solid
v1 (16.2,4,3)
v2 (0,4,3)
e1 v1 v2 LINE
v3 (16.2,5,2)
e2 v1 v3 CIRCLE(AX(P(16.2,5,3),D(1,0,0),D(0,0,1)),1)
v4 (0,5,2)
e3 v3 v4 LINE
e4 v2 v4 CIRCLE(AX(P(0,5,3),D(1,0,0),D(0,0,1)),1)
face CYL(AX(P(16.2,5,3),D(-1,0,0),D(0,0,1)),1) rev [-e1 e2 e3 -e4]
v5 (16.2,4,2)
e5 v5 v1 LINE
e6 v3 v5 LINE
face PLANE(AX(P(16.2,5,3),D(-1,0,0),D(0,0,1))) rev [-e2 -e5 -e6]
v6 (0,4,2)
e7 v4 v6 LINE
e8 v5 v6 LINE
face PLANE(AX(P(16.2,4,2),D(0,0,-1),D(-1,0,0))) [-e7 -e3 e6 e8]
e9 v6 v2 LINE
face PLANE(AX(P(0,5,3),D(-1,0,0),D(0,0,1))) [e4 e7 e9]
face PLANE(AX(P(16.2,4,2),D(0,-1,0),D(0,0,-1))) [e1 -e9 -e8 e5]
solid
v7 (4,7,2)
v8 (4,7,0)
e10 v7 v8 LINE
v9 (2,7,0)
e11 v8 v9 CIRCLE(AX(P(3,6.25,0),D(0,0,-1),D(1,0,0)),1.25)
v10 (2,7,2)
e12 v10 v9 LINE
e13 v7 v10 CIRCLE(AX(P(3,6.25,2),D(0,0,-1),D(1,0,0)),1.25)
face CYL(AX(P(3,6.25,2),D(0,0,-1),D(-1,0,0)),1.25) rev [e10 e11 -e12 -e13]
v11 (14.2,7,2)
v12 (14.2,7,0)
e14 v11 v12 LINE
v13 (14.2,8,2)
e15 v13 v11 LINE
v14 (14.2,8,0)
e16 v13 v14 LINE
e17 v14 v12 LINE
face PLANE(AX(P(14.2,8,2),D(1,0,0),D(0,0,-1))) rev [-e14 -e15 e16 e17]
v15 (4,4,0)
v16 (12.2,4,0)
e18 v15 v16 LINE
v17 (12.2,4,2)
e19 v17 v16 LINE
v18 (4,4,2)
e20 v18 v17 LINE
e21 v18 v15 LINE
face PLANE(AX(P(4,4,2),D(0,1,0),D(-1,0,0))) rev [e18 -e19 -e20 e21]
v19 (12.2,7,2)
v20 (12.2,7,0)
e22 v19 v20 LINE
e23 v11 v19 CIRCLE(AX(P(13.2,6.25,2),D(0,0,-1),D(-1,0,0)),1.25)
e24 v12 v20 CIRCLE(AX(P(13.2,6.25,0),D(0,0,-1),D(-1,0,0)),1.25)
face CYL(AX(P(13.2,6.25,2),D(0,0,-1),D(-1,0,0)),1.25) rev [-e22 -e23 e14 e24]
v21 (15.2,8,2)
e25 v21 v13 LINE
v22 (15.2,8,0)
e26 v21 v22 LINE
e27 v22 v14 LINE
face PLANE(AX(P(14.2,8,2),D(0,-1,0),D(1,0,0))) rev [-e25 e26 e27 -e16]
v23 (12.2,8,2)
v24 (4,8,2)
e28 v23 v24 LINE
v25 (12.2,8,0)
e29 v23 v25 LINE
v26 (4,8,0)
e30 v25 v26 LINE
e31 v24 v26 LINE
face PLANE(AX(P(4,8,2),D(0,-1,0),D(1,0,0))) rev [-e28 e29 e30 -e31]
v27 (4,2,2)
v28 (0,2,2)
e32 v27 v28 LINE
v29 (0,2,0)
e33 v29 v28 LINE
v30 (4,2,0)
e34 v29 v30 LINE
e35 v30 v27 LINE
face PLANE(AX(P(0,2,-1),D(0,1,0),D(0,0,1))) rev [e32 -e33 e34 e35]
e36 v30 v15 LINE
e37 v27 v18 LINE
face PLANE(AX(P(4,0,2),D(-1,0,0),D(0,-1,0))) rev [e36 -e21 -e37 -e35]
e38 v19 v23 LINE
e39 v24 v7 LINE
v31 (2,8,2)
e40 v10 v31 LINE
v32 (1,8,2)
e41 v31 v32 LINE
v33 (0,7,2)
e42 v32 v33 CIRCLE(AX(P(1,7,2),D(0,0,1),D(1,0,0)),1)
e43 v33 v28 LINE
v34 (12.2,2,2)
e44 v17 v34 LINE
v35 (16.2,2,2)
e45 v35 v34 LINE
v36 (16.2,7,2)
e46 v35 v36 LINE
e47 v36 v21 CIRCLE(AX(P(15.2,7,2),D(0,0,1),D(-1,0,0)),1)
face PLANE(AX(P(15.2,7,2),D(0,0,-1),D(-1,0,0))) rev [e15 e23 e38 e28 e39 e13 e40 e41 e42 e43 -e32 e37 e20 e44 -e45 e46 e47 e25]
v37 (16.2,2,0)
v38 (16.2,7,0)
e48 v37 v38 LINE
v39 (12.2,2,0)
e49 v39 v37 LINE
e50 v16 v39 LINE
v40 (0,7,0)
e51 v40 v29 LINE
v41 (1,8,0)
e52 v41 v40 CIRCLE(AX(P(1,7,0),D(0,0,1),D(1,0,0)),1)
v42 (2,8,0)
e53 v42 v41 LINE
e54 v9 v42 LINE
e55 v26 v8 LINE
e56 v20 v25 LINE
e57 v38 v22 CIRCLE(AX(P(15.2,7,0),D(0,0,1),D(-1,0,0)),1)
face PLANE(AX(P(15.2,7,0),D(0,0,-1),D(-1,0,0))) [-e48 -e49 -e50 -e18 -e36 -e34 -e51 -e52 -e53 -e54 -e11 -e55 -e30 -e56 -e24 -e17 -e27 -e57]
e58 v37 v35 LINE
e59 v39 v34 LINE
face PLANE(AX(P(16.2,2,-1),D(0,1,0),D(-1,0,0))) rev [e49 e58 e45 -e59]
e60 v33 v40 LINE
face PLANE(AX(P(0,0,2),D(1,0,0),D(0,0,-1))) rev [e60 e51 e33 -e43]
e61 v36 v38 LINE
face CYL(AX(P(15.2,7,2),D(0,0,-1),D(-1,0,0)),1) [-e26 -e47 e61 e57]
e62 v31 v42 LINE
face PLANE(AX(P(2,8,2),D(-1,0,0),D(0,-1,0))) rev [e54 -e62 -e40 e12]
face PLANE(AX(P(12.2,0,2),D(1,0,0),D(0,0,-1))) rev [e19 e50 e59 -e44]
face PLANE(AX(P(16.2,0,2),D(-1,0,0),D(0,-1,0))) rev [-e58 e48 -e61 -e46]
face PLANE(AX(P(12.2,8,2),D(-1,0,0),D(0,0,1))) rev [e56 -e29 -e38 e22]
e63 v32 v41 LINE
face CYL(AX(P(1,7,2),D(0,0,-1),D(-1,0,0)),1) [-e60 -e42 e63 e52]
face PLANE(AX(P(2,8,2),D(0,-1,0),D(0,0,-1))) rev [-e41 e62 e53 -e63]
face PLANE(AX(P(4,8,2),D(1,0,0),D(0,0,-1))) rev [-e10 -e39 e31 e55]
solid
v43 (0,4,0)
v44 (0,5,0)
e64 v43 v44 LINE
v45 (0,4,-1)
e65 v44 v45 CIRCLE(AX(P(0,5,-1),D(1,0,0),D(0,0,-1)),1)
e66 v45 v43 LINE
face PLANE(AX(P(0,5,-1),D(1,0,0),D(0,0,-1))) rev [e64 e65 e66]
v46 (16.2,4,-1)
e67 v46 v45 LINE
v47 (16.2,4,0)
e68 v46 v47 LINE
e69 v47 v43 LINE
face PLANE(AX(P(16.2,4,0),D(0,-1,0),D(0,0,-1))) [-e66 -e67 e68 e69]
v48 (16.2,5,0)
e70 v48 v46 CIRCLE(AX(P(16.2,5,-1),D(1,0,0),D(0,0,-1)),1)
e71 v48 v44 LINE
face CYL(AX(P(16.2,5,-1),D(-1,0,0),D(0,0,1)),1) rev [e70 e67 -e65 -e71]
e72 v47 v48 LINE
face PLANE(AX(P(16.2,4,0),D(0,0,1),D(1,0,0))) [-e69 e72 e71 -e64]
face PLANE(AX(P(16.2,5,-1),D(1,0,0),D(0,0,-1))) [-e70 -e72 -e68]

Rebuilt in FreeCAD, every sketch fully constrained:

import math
import FreeCAD as App
import Part
import Sketcher
Q = App.Units.Quantity


def add_polygon(sketch, points):
    """Adds a closed chain of lines whose ends are joined by coincident constraints."""
    first, n = sketch.GeometryCount, len(points)
    for a, b in zip(points, points[1:] + points[:1]):
        sketch.addGeometry(Part.LineSegment(App.Vector(*a, 0), App.Vector(*b, 0)), False)
    for i in range(n):
        sketch.addConstraint(Sketcher.Constraint("Coincident", first + i, 2, first + (i + 1) % n, 1))

doc = App.newDocument("Part")
body = doc.addObject("PartDesign::Body", "Body")

# Sketch on XY plane
sketch1 = body.newObject("Sketcher::SketchObject", "Sketch")
sketch1.AttachmentSupport = (doc.getObject("XY_Plane"), [""])
sketch1.MapMode = "FlatFace"
sketch1.addGeometry([
    Part.LineSegment(App.Vector(12.2, 8, 0), App.Vector(4, 8, 0)),  # 0
    Part.LineSegment(App.Vector(4, 8, 0), App.Vector(4, 7, 0)),  # 1
    Part.ArcOfCircle(Part.Circle(App.Vector(3, 6.25, 0), App.Vector(0, 0, 1), 1.25), math.radians(143.130102), math.radians(396.869898)),  # 2
    Part.LineSegment(App.Vector(2, 7, 0), App.Vector(2, 8, 0)),  # 3
    Part.LineSegment(App.Vector(2, 8, 0), App.Vector(1, 8, 0)),  # 4
    Part.ArcOfCircle(Part.Circle(App.Vector(1, 7, 0), App.Vector(0, 0, 1), 1), math.radians(90), math.radians(180)),  # 5
    Part.LineSegment(App.Vector(0, 7, 0), App.Vector(0, 0, 0)),  # 6
    Part.LineSegment(App.Vector(0, 0, 0), App.Vector(4, 0, 0)),  # 7
    Part.LineSegment(App.Vector(4, 0, 0), App.Vector(4, 4, 0)),  # 8
    Part.LineSegment(App.Vector(4, 4, 0), App.Vector(12.2, 4, 0)),  # 9
    Part.LineSegment(App.Vector(12.2, 4, 0), App.Vector(12.2, 0, 0)),  # 10
    Part.LineSegment(App.Vector(12.2, 0, 0), App.Vector(16.2, 0, 0)),  # 11
    Part.LineSegment(App.Vector(16.2, 0, 0), App.Vector(16.2, 7, 0)),  # 12
    Part.ArcOfCircle(Part.Circle(App.Vector(15.2, 7, 0), App.Vector(0, 0, 1), 1), math.radians(0), math.radians(90)),  # 13
    Part.LineSegment(App.Vector(15.2, 8, 0), App.Vector(14.2, 8, 0)),  # 14
    Part.LineSegment(App.Vector(14.2, 8, 0), App.Vector(14.2, 7, 0)),  # 15
    Part.ArcOfCircle(Part.Circle(App.Vector(13.2, 6.25, 0), App.Vector(0, 0, 1), 1.25), math.radians(143.130102), math.radians(396.869898)),  # 16
    Part.LineSegment(App.Vector(12.2, 7, 0), App.Vector(12.2, 8, 0)),  # 17
], False)
sketch1.addConstraint([
    Sketcher.Constraint("Coincident", 0, 2, 1, 1),
    Sketcher.Constraint("Coincident", 1, 2, 2, 2),
    Sketcher.Constraint("Coincident", 2, 1, 3, 1),
    Sketcher.Constraint("Coincident", 3, 2, 4, 1),
    Sketcher.Constraint("Tangent", 4, 2, 5, 1),
    Sketcher.Constraint("Tangent", 5, 2, 6, 1),
    Sketcher.Constraint("Coincident", 6, 2, 7, 1),
    Sketcher.Constraint("Coincident", 7, 2, 8, 1),
    Sketcher.Constraint("Coincident", 8, 2, 9, 1),
    Sketcher.Constraint("Coincident", 9, 2, 10, 1),
    Sketcher.Constraint("Coincident", 10, 2, 11, 1),
    Sketcher.Constraint("Coincident", 11, 2, 12, 1),
    Sketcher.Constraint("Tangent", 12, 2, 13, 1),
    Sketcher.Constraint("Tangent", 13, 2, 14, 1),
    Sketcher.Constraint("Coincident", 14, 2, 15, 1),
    Sketcher.Constraint("Coincident", 15, 2, 16, 2),
    Sketcher.Constraint("Coincident", 16, 1, 17, 1),
    Sketcher.Constraint("Coincident", 17, 2, 0, 1),
    Sketcher.Constraint("Horizontal", 0),
    Sketcher.Constraint("Vertical", 1),
    Sketcher.Constraint("Vertical", 3),
    Sketcher.Constraint("Horizontal", 4),
    Sketcher.Constraint("Vertical", 6),
    Sketcher.Constraint("Horizontal", 7),
    Sketcher.Constraint("Vertical", 8),
    Sketcher.Constraint("Horizontal", 9),
    Sketcher.Constraint("Vertical", 10),
    Sketcher.Constraint("Horizontal", 11),
    Sketcher.Constraint("Vertical", 12),
    Sketcher.Constraint("Horizontal", 14),
    Sketcher.Constraint("Vertical", 15),
    Sketcher.Constraint("Vertical", 17),
    Sketcher.Constraint("Coincident", 6, 2, -1, 1),
    Sketcher.Constraint("Equal", 5, 13),
    Sketcher.Constraint("Equal", 2, 16),
    Sketcher.Constraint("PointOnObject", 10, 2, -1),
    Sketcher.Constraint("Horizontal", 5, 3, 13, 3),
    Sketcher.Constraint("Horizontal", 2, 3, 16, 3),
    Sketcher.Constraint("Horizontal", 13, 3, 1, 2),
    Sketcher.Constraint("Horizontal", 1, 2, 2, 1),
    Sketcher.Constraint("Horizontal", 0, 2, 3, 2),
    Sketcher.Constraint("Horizontal", 12, 2, 15, 2),
    Sketcher.Constraint("Horizontal", 15, 2, 16, 1),
    Sketcher.Constraint("Vertical", 1, 2, 7, 2),
    Sketcher.Constraint("Vertical", 10, 2, 16, 1),
    Sketcher.Constraint("Equal", 7, 11),
    Sketcher.Constraint("Equal", 14, 1),
    Sketcher.Constraint("Equal", 11, 8),
    Sketcher.Constraint("Radius", 5, Q("1 mm")),
    Sketcher.Constraint("DistanceX", 7, 1, 7, 2, Q("4 mm")),
    Sketcher.Constraint("DistanceY", 6, 2, 6, 1, Q("7 mm")),
    Sketcher.Constraint("Radius", 2, Q("1.25 mm")),
    Sketcher.Constraint("DistanceX", 0, 2, 0, 1, Q("8.2 mm")),
])
pad1 = body.newObject("PartDesign::Pad", "Pad")
pad1.Profile = sketch1
pad1.Length = 2

# Sketch on XY plane
sketch2 = body.newObject("Sketcher::SketchObject", "Sketch001")
sketch2.AttachmentSupport = (doc.getObject("XY_Plane"), [""])
sketch2.MapMode = "FlatFace"
sketch2.AttachmentOffset = App.Placement(App.Vector(0, 0, 2), App.Rotation())
add_polygon(sketch2, [(0, 2), (0, 0), (4, 0), (4, 2)])  # lines 0-3
add_polygon(sketch2, [(12.2, 2), (12.2, 0), (16.2, 0), (16.2, 2)])  # lines 4-7
sketch2.addConstraint([
    Sketcher.Constraint("Vertical", 0),
    Sketcher.Constraint("Horizontal", 1),
    Sketcher.Constraint("Vertical", 2),
    Sketcher.Constraint("Horizontal", 3),
    Sketcher.Constraint("Vertical", 4),
    Sketcher.Constraint("Horizontal", 5),
    Sketcher.Constraint("Vertical", 6),
    Sketcher.Constraint("Horizontal", 7),
    Sketcher.Constraint("Coincident", 0, 2, -1, 1),
    Sketcher.Constraint("PointOnObject", 4, 2, -1),
    Sketcher.Constraint("Horizontal", 3, 2, 6, 2),
    Sketcher.Constraint("Equal", 3, 5),
    Sketcher.Constraint("DistanceX", 1, 1, 1, 2, Q("4 mm")),
    Sketcher.Constraint("DistanceY", 0, 2, 0, 1, Q("2 mm")),
    Sketcher.Constraint("DistanceX", -1, 1, 4, 2, Q("12.2 mm")),
])
pocket1 = body.newObject("PartDesign::Pocket", "Pocket")
pocket1.Profile = sketch2
pocket1.Type = "ThroughAll"
body2 = doc.addObject("PartDesign::Body", "Body001")

# Sketch on YZ plane
sketch3 = body2.newObject("Sketcher::SketchObject", "Sketch002")
sketch3.AttachmentSupport = (doc.getObject("YZ_Plane001"), [""])
sketch3.MapMode = "FlatFace"
sketch3.addGeometry([
    Part.LineSegment(App.Vector(5, 2, 0), App.Vector(4, 2, 0)),
    Part.LineSegment(App.Vector(4, 2, 0), App.Vector(4, 3, 0)),
    Part.ArcOfCircle(Part.Circle(App.Vector(5, 3, 0), App.Vector(0, 0, 1), 1), math.radians(-180), math.radians(-90)),
], False)
sketch3.addConstraint([
    Sketcher.Constraint("Coincident", 0, 2, 1, 1),
    Sketcher.Constraint("Tangent", 1, 2, 2, 1),
    Sketcher.Constraint("Tangent", 2, 2, 0, 1),
    Sketcher.Constraint("Horizontal", 0),
    Sketcher.Constraint("Vertical", 1),
    Sketcher.Constraint("Radius", 2, Q("1 mm")),
    Sketcher.Constraint("DistanceX", -1, 1, 2, 3, Q("5 mm")),
    Sketcher.Constraint("DistanceY", -1, 1, 2, 3, Q("3 mm")),
])
pad2 = body2.newObject("PartDesign::Pad", "Pad001")
pad2.Profile = sketch3
pad2.Length = 16.2
body3 = doc.addObject("PartDesign::Body", "Body002")

# Sketch on YZ plane
sketch4 = body3.newObject("Sketcher::SketchObject", "Sketch003")
sketch4.AttachmentSupport = (doc.getObject("YZ_Plane002"), [""])
sketch4.MapMode = "FlatFace"
sketch4.addGeometry([
    Part.LineSegment(App.Vector(4, -1, 0), App.Vector(4, 0, 0)),
    Part.LineSegment(App.Vector(4, 0, 0), App.Vector(5, 0, 0)),
    Part.ArcOfCircle(Part.Circle(App.Vector(5, -1, 0), App.Vector(0, 0, 1), 1), math.radians(90), math.radians(180)),
], False)
sketch4.addConstraint([
    Sketcher.Constraint("Coincident", 0, 2, 1, 1),
    Sketcher.Constraint("Tangent", 1, 2, 2, 1),
    Sketcher.Constraint("Tangent", 2, 2, 0, 1),
    Sketcher.Constraint("Vertical", 0),
    Sketcher.Constraint("Horizontal", 1),
    Sketcher.Constraint("PointOnObject", 0, 2, -1),
    Sketcher.Constraint("Radius", 2, Q("1 mm")),
    Sketcher.Constraint("DistanceX", -1, 1, 2, 3, Q("5 mm")),
])
pad3 = body3.newObject("PartDesign::Pad", "Pad002")
pad3.Profile = sketch4
pad3.Length = 16.2

doc.recompute()
